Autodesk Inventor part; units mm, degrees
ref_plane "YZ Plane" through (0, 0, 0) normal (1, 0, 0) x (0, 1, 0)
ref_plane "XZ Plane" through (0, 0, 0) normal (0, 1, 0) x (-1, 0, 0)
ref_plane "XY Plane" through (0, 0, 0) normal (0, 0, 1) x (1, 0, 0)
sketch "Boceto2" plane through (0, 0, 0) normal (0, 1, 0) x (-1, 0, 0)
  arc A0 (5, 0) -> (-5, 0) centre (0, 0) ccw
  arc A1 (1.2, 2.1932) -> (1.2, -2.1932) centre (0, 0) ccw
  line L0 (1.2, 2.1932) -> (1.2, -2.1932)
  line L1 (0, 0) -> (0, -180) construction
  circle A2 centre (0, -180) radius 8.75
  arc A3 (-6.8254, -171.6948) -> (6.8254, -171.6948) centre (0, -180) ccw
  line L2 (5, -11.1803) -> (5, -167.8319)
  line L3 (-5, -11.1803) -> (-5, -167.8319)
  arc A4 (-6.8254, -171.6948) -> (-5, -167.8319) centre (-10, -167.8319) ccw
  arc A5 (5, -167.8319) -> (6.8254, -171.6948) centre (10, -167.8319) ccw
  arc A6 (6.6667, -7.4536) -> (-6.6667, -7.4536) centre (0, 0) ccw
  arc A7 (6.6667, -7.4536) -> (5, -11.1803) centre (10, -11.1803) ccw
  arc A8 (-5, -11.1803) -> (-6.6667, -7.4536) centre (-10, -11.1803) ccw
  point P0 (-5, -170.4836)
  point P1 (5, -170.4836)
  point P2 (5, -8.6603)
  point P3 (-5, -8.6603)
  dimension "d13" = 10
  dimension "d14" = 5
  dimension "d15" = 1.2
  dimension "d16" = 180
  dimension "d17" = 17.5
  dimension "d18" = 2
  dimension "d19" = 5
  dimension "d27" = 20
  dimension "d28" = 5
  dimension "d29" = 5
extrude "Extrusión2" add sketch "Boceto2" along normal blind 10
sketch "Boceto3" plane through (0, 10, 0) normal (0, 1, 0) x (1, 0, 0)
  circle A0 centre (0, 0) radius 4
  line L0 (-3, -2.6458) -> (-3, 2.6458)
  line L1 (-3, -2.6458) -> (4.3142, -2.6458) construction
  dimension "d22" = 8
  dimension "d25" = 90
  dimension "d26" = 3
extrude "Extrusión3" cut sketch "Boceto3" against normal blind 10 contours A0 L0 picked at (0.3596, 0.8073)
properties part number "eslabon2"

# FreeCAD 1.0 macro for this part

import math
import FreeCAD as App
import Part
import Sketcher
from FreeCAD import Vector
Q = App.Units.Quantity

doc = App.newDocument("Part")
params = doc.addObject("Spreadsheet::Sheet", "Params")
for row, (alias, value) in enumerate([
    ("sketch1_radius", "5 mm"),
    ("sketch1_radius2", "10 mm"),
    ("sketch1_diameter", "17.5 mm"),
    ("sketch1_radius3", "2.5 mm"),
    ("sketch1_radius4", "10.75 mm"),
    ("pad1_length", "10 mm"),
    ("sketch2_radius", "4 mm"),
    ("pocket1_length", "10 mm"),
], start=1):
    params.set(f"A{row}", alias)
    params.set(f"B{row}", "=" + value)
    params.setAlias(f"B{row}", alias)

body = doc.addObject("PartDesign::Body", "Body")

# Sketch on XZ plane
sketch1 = body.newObject("Sketcher::SketchObject", "Sketch")
sketch1.AttachmentSupport = (doc.getObject("XZ_Plane"), [""])
sketch1.MapMode = "FlatFace"
sketch1.addGeometry(Part.ArcOfCircle(Part.Circle(Vector(10, -167.8, 0), Vector(0, 0, 1), 5), math.radians(180), math.radians(231)), False)
sketch1.addGeometry(Part.ArcOfCircle(Part.Circle(Vector(0, -180, 0), Vector(0, 0, 1), 10.7), math.radians(129), math.radians(411)), False)
sketch1.addGeometry(Part.ArcOfCircle(Part.Circle(Vector(-10, -167.8, 0), Vector(0, 0, 1), 5), math.radians(-51), math.radians(0)), False)
sketch1.addGeometry(Part.LineSegment(Vector(-5, -167.8, 0), Vector(-5, -11.2, 0)), False)
sketch1.addGeometry(Part.ArcOfCircle(Part.Circle(Vector(-10, -11.2, 0), Vector(0, 0, 1), 5), math.radians(0), math.radians(48)), False)
sketch1.addGeometry(Part.ArcOfCircle(Part.Circle(Vector(0, 0, 0), Vector(0, 0, 1), 10), math.radians(-48), math.radians(228)), False)
sketch1.addGeometry(Part.ArcOfCircle(Part.Circle(Vector(10, -11.2, 0), Vector(0, 0, 1), 5), math.radians(132), math.radians(180)), False)
sketch1.addGeometry(Part.LineSegment(Vector(5, -11.2, 0), Vector(5, -167.8, 0)), False)
sketch1.addGeometry(Part.Circle(Vector(0, -180, 0), Vector(0, 0, 1), 8.8), False)
sketch1.addGeometry(Part.ArcOfCircle(Part.Circle(Vector(0, 0, 0), Vector(0, 0, 1), 2.5), math.radians(-119), math.radians(119)), False)
sketch1.addGeometry(Part.LineSegment(Vector(-1.2, 2.2, 0), Vector(-1.2, -2.2, 0)), False)
sketch1.addConstraint(Sketcher.Constraint("Tangent", 0, 2, 1, 2))
sketch1.addConstraint(Sketcher.Constraint("Tangent", 1, 1, 2, 1))
sketch1.addConstraint(Sketcher.Constraint("Tangent", 2, 2, 3, 1))
sketch1.addConstraint(Sketcher.Constraint("Tangent", 3, 2, 4, 1))
sketch1.addConstraint(Sketcher.Constraint("Tangent", 4, 2, 5, 2))
sketch1.addConstraint(Sketcher.Constraint("Tangent", 5, 1, 6, 1))
sketch1.addConstraint(Sketcher.Constraint("Tangent", 6, 2, 7, 1))
sketch1.addConstraint(Sketcher.Constraint("Tangent", 7, 2, 0, 1))
sketch1.addConstraint(Sketcher.Constraint("Coincident", 9, 1, 10, 2))
sketch1.addConstraint(Sketcher.Constraint("Coincident", 10, 1, 9, 2))
sketch1.addConstraint(Sketcher.Constraint("Vertical", 3))
sketch1.addConstraint(Sketcher.Constraint("Vertical", 7))
sketch1.addConstraint(Sketcher.Constraint("Vertical", 10))
sketch1.addConstraint(Sketcher.Constraint("Coincident", 5, 3, -1, 1))
sketch1.addConstraint(Sketcher.Constraint("Coincident", 9, 3, -1, 1))
sketch1.addConstraint(Sketcher.Constraint("Coincident", 8, 3, 1, 3))
sketch1.addConstraint(Sketcher.Constraint("Equal", 0, 2))
sketch1.addConstraint(Sketcher.Constraint("Equal", 2, 4))
sketch1.addConstraint(Sketcher.Constraint("Equal", 4, 6))
sketch1.addConstraint(Sketcher.Constraint("Symmetric", 0, 3, 2, 3, -2))
sketch1.addConstraint(Sketcher.Constraint("Radius", 0, Q("5 mm")))
sketch1.addConstraint(Sketcher.Constraint("Radius", 5, Q("10 mm")))
sketch1.addConstraint(Sketcher.Constraint("Diameter", 8, Q("17.5 mm")))
sketch1.addConstraint(Sketcher.Constraint("Radius", 9, Q("2.5 mm")))
sketch1.addConstraint(Sketcher.Constraint("DistanceX", -1, 1, 0, 3, Q("10 mm")))
sketch1.addConstraint(Sketcher.Constraint("DistanceY", 1, 3, -1, 1, Q("180 mm")))
sketch1.addConstraint(Sketcher.Constraint("DistanceX", 9, 1, -1, 1, Q("1.2 mm")))
sketch1.addConstraint(Sketcher.Constraint("Radius", 1, Q("10.75 mm")))
sketch1.setExpression("Constraints[20]", "Params.sketch1_radius")
sketch1.setExpression("Constraints[21]", "Params.sketch1_radius2")
sketch1.setExpression("Constraints[22]", "Params.sketch1_diameter")
sketch1.setExpression("Constraints[23]", "Params.sketch1_radius3")
sketch1.setExpression("Constraints[27]", "Params.sketch1_radius4")
pad1 = body.newObject("PartDesign::Pad", "Pad")
pad1.Profile = sketch1
pad1.setExpression("Length", "Params.pad1_length")
pad1.Reversed = True

# Sketch on XZ plane
sketch2 = body.newObject("Sketcher::SketchObject", "Sketch001")
sketch2.AttachmentSupport = (doc.getObject("XZ_Plane"), [""])
sketch2.MapMode = "FlatFace"
sketch2.AttachmentOffset = App.Placement(Vector(0, 0, -10), App.Rotation())
sketch2.addGeometry(Part.ArcOfCircle(Part.Circle(Vector(0, 0, 0), Vector(0, 0, 1), 4), math.radians(-139), math.radians(139)), False)
sketch2.addGeometry(Part.LineSegment(Vector(-3, 2.6, 0), Vector(-3, -2.6, 0)), False)
sketch2.addConstraint(Sketcher.Constraint("Coincident", 0, 1, 1, 2))
sketch2.addConstraint(Sketcher.Constraint("Coincident", 1, 1, 0, 2))
sketch2.addConstraint(Sketcher.Constraint("Vertical", 1))
sketch2.addConstraint(Sketcher.Constraint("Coincident", 0, 3, -1, 1))
sketch2.addConstraint(Sketcher.Constraint("Radius", 0, Q("4 mm")))
sketch2.addConstraint(Sketcher.Constraint("DistanceX", 0, 1, -1, 1, Q("3 mm")))
sketch2.setExpression("Constraints[4]", "Params.sketch2_radius")
pocket1 = body.newObject("PartDesign::Pocket", "Pocket")
pocket1.Profile = sketch2
pocket1.setExpression("Length", "Params.pocket1_length")
pocket1.Reversed = True

doc.recompute()
